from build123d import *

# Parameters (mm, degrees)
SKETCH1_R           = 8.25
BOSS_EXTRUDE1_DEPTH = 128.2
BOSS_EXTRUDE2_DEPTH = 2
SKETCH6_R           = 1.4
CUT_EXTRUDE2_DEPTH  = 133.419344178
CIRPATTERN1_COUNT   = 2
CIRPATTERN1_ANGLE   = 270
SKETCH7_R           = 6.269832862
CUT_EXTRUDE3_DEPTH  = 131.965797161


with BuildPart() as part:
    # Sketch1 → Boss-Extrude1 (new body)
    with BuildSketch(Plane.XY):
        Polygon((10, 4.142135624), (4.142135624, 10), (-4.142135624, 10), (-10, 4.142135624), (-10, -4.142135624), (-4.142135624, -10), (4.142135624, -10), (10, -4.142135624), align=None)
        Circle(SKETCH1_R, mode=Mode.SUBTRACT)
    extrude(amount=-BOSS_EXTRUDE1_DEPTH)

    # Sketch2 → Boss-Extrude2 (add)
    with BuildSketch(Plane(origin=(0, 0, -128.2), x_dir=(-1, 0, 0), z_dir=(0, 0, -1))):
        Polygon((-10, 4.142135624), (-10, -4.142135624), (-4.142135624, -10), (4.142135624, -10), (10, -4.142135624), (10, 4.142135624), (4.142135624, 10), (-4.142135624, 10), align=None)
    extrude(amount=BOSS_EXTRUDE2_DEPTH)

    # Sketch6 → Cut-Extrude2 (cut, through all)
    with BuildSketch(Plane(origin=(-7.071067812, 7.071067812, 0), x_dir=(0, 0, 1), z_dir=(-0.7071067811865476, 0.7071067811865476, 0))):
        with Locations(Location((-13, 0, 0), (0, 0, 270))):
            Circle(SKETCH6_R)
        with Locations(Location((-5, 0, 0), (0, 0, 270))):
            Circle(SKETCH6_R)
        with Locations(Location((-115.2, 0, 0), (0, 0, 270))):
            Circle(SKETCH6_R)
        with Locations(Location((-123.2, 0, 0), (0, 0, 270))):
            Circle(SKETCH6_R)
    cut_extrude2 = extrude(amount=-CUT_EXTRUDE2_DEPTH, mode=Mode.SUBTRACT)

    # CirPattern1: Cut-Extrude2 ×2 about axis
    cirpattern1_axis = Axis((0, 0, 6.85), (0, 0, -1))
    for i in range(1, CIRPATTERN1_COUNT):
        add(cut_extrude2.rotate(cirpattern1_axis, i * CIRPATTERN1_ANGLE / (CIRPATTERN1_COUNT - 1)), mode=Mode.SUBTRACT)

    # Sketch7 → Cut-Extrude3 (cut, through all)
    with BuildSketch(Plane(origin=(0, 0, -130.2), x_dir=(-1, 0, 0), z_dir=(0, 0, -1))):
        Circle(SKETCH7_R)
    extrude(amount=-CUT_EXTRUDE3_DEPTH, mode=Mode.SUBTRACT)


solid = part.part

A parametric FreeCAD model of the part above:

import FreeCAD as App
import Part
import Sketcher
from FreeCAD import Vector
Q = App.Units.Quantity


def add_polygon(sketch, points):
    """Adds a closed chain of lines whose ends are joined by coincident constraints."""
    first, n = sketch.GeometryCount, len(points)
    for a, b in zip(points, points[1:] + points[:1]):
        sketch.addGeometry(Part.LineSegment(App.Vector(*a, 0), App.Vector(*b, 0)), False)
    for i in range(n):
        sketch.addConstraint(Sketcher.Constraint("Coincident", first + i, 2, first + (i + 1) % n, 1))

doc = App.newDocument("Part")
body = doc.addObject("PartDesign::Body", "Body")

# Sketch on XY plane
sketch1 = body.newObject("Sketcher::SketchObject", "Sketch")
sketch1.AttachmentSupport = (doc.getObject("XY_Plane"), [""])
sketch1.MapMode = "FlatFace"
add_polygon(sketch1, [(10, 4), (4, 10), (-4, 10), (-10, 4), (-10, -4), (-4, -10), (4, -10), (10, -4)])  # lines 0-7
sketch1.addGeometry(Part.Circle(Vector(0, 0, 0), Vector(0, 0, 1), 8), False)  # 8
sketch1.addConstraint([
    Sketcher.Constraint("Horizontal", 1),
    Sketcher.Constraint("Vertical", 3),
    Sketcher.Constraint("Horizontal", 5),
    Sketcher.Constraint("Vertical", 7),
    Sketcher.Constraint("Coincident", 8, 3, -1, 1),
    Sketcher.Constraint("Symmetric", 0, 2, 4, 2, -1, 1),
    Sketcher.Constraint("Symmetric", 2, 2, 6, 2, -1, 1),
    Sketcher.Constraint("Perpendicular", 0, 2),
    Sketcher.Constraint("Perpendicular", 2, 4),
    Sketcher.Constraint("Perpendicular", 4, 6),
    Sketcher.Constraint("Horizontal", 3, 2, 6, 2),
    Sketcher.Constraint("Vertical", 1, 2, 4, 2),
    Sketcher.Constraint("Equal", 5, 3),
    Sketcher.Constraint("Diameter", 8, Q("16.5 mm")),
    Sketcher.Constraint("DistanceY", -1, 1, 0, 2, Q("10 mm")),
    Sketcher.Constraint("DistanceX", 1, 2, 1, 1, Q("8.284271 mm")),
])
pad1 = body.newObject("PartDesign::Pad", "Pad")
pad1.Profile = sketch1
pad1.Length = 128.2
pad1.Reversed = True

# Sketch on XY plane
sketch2 = body.newObject("Sketcher::SketchObject", "Sketch001")
sketch2.AttachmentSupport = (doc.getObject("XY_Plane"), [""])
sketch2.MapMode = "FlatFace"
sketch2.AttachmentOffset = App.Placement(Vector(0, 0, -128.2), App.Rotation())
add_polygon(sketch2, [(10, 4), (10, -4), (4, -10), (-4, -10), (-10, -4), (-10, 4), (-4, 10), (4, 10)])  # lines 0-7
sketch2.addConstraint([
    Sketcher.Constraint("Vertical", 0),
    Sketcher.Constraint("Horizontal", 2),
    Sketcher.Constraint("Vertical", 4),
    Sketcher.Constraint("Horizontal", 6),
    Sketcher.Constraint("Symmetric", 0, 2, 4, 2, -1, 1),
    Sketcher.Constraint("Symmetric", 1, 2, 5, 2, -1, 1),
    Sketcher.Constraint("Perpendicular", 1, 3),
    Sketcher.Constraint("Perpendicular", 5, 7),
    Sketcher.Constraint("Horizontal", 0, 2, 3, 2),
    Sketcher.Constraint("Horizontal", 4, 2, 7, 2),
    Sketcher.Constraint("Vertical", 2, 2, 5, 2),
    Sketcher.Constraint("Equal", 6, 0),
    Sketcher.Constraint("DistanceX", -1, 1, 0, 2, Q("10 mm")),
    Sketcher.Constraint("DistanceX", 2, 2, 2, 1, Q("8.284271 mm")),
])
pad2 = body.newObject("PartDesign::Pad", "Pad001")
pad2.Profile = sketch2
pad2.Length = 2
pad2.Reversed = True

# Sketch on an angled plane
sketch3 = body.newObject("Sketcher::SketchObject", "Sketch002")
sketch3.Placement = App.Placement(Vector(-7.071068, 7.071068, 0), App.Rotation(Vector(0, 0, 1), Vector(0.707106781, 0.707106781, 0), Vector(-0.707106781, 0.707106781, 0), "ZXY"))
sketch3.addGeometry([
    Part.Circle(Vector(-13, 0, 0), Vector(0, 0, 1), 1.4),
    Part.Circle(Vector(-5, 0, 0), Vector(0, 0, 1), 1.4),
    Part.Circle(Vector(-115.2, 0, 0), Vector(0, 0, 1), 1.4),
    Part.Circle(Vector(-123.2, 0, 0), Vector(0, 0, 1), 1.4),
], False)
sketch3.addConstraint([
    Sketcher.Constraint("Equal", 0, 1),
    Sketcher.Constraint("Equal", 1, 2),
    Sketcher.Constraint("Equal", 2, 3),
    Sketcher.Constraint("PointOnObject", 0, 3, -1),
    Sketcher.Constraint("PointOnObject", 1, 3, -1),
    Sketcher.Constraint("PointOnObject", 2, 3, -1),
    Sketcher.Constraint("PointOnObject", 3, 3, -1),
    Sketcher.Constraint("Diameter", 0, Q("2.8 mm")),
    Sketcher.Constraint("DistanceX", 0, 3, -1, 1, Q("13 mm")),
    Sketcher.Constraint("DistanceX", 1, 3, -1, 1, Q("5 mm")),
    Sketcher.Constraint("DistanceX", 3, 3, 2, 3, Q("8 mm")),
    Sketcher.Constraint("DistanceX", 2, 3, -1, 1, Q("115.2 mm")),
])
pocket1 = body.newObject("PartDesign::Pocket", "Pocket")
pocket1.Profile = sketch3
pocket1.Type = "ThroughAll"
doc.recompute()

polarpattern = body.newObject("PartDesign::PolarPattern", "PolarPattern")
polarpattern.Originals = [pocket1]
polarpattern.Axis = (doc.getObject("Z_Axis"), [""])
polarpattern.Angle = 270
polarpattern.Occurrences = 2
polarpattern.Reversed = True
body.Tip = polarpattern

# Sketch on XY plane
sketch4 = body.newObject("Sketcher::SketchObject", "Sketch003")
sketch4.AttachmentSupport = (doc.getObject("XY_Plane"), [""])
sketch4.MapMode = "FlatFace"
sketch4.AttachmentOffset = App.Placement(Vector(0, 0, -130.2), App.Rotation())
sketch4.addGeometry(Part.Circle(Vector(0, 0, 0), Vector(0, 0, 1), 6), False)
sketch4.addConstraint([
    Sketcher.Constraint("Coincident", 0, 3, -1, 1),
    Sketcher.Constraint("Diameter", 0, Q("12.539666 mm")),
])
pocket2 = body.newObject("PartDesign::Pocket", "Pocket001")
pocket2.Profile = sketch4
pocket2.Type = "ThroughAll"
pocket2.Reversed = True

doc.recompute()
